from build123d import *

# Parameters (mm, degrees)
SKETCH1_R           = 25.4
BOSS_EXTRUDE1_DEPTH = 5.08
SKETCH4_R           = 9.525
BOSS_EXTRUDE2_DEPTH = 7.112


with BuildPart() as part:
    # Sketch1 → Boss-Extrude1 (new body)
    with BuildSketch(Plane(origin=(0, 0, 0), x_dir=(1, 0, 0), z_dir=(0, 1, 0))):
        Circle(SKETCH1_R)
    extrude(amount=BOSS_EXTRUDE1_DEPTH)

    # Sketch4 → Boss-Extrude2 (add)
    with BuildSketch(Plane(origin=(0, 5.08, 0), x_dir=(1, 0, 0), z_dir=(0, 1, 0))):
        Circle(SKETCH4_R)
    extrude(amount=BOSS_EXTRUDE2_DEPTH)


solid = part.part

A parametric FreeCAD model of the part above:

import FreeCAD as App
import Part
import Sketcher
Q = App.Units.Quantity

doc = App.newDocument("Part")
body = doc.addObject("PartDesign::Body", "Body")

sketch1 = body.newObject("Sketcher::SketchObject", "Sketch")
sketch1.AttachmentSupport = (doc.getObject("XZ_Plane"), [""])
sketch1.MapMode = "FlatFace"
sketch1.addGeometry(Part.Circle(App.Vector(0, 0, 0), App.Vector(0, 0, 1), 25), False)
sketch1.addConstraint(Sketcher.Constraint("Coincident", 0, 3, -1, 1))
sketch1.addConstraint(Sketcher.Constraint("Diameter", 0, Q("2 in")))
pad1 = body.newObject("PartDesign::Pad", "Pad")
pad1.Profile = sketch1
pad1.Length = Q("0.2 in")
pad1.Reversed = True

sketch2 = body.newObject("Sketcher::SketchObject", "Sketch001")
sketch2.AttachmentSupport = (doc.getObject("XZ_Plane"), [""])
sketch2.MapMode = "FlatFace"
sketch2.AttachmentOffset = App.Placement(App.Vector(0, 0, -0.2 * 25.4), App.Rotation())
sketch2.addGeometry(Part.Circle(App.Vector(0, 0, 0), App.Vector(0, 0, 1), 10), False)
sketch2.addConstraint(Sketcher.Constraint("Coincident", 0, 3, -1, 1))
sketch2.addConstraint(Sketcher.Constraint("Diameter", 0, Q("0.75 in")))
pad2 = body.newObject("PartDesign::Pad", "Pad001")
pad2.Profile = sketch2
pad2.Length = Q("0.28 in")
pad2.Reversed = True

doc.recompute()
